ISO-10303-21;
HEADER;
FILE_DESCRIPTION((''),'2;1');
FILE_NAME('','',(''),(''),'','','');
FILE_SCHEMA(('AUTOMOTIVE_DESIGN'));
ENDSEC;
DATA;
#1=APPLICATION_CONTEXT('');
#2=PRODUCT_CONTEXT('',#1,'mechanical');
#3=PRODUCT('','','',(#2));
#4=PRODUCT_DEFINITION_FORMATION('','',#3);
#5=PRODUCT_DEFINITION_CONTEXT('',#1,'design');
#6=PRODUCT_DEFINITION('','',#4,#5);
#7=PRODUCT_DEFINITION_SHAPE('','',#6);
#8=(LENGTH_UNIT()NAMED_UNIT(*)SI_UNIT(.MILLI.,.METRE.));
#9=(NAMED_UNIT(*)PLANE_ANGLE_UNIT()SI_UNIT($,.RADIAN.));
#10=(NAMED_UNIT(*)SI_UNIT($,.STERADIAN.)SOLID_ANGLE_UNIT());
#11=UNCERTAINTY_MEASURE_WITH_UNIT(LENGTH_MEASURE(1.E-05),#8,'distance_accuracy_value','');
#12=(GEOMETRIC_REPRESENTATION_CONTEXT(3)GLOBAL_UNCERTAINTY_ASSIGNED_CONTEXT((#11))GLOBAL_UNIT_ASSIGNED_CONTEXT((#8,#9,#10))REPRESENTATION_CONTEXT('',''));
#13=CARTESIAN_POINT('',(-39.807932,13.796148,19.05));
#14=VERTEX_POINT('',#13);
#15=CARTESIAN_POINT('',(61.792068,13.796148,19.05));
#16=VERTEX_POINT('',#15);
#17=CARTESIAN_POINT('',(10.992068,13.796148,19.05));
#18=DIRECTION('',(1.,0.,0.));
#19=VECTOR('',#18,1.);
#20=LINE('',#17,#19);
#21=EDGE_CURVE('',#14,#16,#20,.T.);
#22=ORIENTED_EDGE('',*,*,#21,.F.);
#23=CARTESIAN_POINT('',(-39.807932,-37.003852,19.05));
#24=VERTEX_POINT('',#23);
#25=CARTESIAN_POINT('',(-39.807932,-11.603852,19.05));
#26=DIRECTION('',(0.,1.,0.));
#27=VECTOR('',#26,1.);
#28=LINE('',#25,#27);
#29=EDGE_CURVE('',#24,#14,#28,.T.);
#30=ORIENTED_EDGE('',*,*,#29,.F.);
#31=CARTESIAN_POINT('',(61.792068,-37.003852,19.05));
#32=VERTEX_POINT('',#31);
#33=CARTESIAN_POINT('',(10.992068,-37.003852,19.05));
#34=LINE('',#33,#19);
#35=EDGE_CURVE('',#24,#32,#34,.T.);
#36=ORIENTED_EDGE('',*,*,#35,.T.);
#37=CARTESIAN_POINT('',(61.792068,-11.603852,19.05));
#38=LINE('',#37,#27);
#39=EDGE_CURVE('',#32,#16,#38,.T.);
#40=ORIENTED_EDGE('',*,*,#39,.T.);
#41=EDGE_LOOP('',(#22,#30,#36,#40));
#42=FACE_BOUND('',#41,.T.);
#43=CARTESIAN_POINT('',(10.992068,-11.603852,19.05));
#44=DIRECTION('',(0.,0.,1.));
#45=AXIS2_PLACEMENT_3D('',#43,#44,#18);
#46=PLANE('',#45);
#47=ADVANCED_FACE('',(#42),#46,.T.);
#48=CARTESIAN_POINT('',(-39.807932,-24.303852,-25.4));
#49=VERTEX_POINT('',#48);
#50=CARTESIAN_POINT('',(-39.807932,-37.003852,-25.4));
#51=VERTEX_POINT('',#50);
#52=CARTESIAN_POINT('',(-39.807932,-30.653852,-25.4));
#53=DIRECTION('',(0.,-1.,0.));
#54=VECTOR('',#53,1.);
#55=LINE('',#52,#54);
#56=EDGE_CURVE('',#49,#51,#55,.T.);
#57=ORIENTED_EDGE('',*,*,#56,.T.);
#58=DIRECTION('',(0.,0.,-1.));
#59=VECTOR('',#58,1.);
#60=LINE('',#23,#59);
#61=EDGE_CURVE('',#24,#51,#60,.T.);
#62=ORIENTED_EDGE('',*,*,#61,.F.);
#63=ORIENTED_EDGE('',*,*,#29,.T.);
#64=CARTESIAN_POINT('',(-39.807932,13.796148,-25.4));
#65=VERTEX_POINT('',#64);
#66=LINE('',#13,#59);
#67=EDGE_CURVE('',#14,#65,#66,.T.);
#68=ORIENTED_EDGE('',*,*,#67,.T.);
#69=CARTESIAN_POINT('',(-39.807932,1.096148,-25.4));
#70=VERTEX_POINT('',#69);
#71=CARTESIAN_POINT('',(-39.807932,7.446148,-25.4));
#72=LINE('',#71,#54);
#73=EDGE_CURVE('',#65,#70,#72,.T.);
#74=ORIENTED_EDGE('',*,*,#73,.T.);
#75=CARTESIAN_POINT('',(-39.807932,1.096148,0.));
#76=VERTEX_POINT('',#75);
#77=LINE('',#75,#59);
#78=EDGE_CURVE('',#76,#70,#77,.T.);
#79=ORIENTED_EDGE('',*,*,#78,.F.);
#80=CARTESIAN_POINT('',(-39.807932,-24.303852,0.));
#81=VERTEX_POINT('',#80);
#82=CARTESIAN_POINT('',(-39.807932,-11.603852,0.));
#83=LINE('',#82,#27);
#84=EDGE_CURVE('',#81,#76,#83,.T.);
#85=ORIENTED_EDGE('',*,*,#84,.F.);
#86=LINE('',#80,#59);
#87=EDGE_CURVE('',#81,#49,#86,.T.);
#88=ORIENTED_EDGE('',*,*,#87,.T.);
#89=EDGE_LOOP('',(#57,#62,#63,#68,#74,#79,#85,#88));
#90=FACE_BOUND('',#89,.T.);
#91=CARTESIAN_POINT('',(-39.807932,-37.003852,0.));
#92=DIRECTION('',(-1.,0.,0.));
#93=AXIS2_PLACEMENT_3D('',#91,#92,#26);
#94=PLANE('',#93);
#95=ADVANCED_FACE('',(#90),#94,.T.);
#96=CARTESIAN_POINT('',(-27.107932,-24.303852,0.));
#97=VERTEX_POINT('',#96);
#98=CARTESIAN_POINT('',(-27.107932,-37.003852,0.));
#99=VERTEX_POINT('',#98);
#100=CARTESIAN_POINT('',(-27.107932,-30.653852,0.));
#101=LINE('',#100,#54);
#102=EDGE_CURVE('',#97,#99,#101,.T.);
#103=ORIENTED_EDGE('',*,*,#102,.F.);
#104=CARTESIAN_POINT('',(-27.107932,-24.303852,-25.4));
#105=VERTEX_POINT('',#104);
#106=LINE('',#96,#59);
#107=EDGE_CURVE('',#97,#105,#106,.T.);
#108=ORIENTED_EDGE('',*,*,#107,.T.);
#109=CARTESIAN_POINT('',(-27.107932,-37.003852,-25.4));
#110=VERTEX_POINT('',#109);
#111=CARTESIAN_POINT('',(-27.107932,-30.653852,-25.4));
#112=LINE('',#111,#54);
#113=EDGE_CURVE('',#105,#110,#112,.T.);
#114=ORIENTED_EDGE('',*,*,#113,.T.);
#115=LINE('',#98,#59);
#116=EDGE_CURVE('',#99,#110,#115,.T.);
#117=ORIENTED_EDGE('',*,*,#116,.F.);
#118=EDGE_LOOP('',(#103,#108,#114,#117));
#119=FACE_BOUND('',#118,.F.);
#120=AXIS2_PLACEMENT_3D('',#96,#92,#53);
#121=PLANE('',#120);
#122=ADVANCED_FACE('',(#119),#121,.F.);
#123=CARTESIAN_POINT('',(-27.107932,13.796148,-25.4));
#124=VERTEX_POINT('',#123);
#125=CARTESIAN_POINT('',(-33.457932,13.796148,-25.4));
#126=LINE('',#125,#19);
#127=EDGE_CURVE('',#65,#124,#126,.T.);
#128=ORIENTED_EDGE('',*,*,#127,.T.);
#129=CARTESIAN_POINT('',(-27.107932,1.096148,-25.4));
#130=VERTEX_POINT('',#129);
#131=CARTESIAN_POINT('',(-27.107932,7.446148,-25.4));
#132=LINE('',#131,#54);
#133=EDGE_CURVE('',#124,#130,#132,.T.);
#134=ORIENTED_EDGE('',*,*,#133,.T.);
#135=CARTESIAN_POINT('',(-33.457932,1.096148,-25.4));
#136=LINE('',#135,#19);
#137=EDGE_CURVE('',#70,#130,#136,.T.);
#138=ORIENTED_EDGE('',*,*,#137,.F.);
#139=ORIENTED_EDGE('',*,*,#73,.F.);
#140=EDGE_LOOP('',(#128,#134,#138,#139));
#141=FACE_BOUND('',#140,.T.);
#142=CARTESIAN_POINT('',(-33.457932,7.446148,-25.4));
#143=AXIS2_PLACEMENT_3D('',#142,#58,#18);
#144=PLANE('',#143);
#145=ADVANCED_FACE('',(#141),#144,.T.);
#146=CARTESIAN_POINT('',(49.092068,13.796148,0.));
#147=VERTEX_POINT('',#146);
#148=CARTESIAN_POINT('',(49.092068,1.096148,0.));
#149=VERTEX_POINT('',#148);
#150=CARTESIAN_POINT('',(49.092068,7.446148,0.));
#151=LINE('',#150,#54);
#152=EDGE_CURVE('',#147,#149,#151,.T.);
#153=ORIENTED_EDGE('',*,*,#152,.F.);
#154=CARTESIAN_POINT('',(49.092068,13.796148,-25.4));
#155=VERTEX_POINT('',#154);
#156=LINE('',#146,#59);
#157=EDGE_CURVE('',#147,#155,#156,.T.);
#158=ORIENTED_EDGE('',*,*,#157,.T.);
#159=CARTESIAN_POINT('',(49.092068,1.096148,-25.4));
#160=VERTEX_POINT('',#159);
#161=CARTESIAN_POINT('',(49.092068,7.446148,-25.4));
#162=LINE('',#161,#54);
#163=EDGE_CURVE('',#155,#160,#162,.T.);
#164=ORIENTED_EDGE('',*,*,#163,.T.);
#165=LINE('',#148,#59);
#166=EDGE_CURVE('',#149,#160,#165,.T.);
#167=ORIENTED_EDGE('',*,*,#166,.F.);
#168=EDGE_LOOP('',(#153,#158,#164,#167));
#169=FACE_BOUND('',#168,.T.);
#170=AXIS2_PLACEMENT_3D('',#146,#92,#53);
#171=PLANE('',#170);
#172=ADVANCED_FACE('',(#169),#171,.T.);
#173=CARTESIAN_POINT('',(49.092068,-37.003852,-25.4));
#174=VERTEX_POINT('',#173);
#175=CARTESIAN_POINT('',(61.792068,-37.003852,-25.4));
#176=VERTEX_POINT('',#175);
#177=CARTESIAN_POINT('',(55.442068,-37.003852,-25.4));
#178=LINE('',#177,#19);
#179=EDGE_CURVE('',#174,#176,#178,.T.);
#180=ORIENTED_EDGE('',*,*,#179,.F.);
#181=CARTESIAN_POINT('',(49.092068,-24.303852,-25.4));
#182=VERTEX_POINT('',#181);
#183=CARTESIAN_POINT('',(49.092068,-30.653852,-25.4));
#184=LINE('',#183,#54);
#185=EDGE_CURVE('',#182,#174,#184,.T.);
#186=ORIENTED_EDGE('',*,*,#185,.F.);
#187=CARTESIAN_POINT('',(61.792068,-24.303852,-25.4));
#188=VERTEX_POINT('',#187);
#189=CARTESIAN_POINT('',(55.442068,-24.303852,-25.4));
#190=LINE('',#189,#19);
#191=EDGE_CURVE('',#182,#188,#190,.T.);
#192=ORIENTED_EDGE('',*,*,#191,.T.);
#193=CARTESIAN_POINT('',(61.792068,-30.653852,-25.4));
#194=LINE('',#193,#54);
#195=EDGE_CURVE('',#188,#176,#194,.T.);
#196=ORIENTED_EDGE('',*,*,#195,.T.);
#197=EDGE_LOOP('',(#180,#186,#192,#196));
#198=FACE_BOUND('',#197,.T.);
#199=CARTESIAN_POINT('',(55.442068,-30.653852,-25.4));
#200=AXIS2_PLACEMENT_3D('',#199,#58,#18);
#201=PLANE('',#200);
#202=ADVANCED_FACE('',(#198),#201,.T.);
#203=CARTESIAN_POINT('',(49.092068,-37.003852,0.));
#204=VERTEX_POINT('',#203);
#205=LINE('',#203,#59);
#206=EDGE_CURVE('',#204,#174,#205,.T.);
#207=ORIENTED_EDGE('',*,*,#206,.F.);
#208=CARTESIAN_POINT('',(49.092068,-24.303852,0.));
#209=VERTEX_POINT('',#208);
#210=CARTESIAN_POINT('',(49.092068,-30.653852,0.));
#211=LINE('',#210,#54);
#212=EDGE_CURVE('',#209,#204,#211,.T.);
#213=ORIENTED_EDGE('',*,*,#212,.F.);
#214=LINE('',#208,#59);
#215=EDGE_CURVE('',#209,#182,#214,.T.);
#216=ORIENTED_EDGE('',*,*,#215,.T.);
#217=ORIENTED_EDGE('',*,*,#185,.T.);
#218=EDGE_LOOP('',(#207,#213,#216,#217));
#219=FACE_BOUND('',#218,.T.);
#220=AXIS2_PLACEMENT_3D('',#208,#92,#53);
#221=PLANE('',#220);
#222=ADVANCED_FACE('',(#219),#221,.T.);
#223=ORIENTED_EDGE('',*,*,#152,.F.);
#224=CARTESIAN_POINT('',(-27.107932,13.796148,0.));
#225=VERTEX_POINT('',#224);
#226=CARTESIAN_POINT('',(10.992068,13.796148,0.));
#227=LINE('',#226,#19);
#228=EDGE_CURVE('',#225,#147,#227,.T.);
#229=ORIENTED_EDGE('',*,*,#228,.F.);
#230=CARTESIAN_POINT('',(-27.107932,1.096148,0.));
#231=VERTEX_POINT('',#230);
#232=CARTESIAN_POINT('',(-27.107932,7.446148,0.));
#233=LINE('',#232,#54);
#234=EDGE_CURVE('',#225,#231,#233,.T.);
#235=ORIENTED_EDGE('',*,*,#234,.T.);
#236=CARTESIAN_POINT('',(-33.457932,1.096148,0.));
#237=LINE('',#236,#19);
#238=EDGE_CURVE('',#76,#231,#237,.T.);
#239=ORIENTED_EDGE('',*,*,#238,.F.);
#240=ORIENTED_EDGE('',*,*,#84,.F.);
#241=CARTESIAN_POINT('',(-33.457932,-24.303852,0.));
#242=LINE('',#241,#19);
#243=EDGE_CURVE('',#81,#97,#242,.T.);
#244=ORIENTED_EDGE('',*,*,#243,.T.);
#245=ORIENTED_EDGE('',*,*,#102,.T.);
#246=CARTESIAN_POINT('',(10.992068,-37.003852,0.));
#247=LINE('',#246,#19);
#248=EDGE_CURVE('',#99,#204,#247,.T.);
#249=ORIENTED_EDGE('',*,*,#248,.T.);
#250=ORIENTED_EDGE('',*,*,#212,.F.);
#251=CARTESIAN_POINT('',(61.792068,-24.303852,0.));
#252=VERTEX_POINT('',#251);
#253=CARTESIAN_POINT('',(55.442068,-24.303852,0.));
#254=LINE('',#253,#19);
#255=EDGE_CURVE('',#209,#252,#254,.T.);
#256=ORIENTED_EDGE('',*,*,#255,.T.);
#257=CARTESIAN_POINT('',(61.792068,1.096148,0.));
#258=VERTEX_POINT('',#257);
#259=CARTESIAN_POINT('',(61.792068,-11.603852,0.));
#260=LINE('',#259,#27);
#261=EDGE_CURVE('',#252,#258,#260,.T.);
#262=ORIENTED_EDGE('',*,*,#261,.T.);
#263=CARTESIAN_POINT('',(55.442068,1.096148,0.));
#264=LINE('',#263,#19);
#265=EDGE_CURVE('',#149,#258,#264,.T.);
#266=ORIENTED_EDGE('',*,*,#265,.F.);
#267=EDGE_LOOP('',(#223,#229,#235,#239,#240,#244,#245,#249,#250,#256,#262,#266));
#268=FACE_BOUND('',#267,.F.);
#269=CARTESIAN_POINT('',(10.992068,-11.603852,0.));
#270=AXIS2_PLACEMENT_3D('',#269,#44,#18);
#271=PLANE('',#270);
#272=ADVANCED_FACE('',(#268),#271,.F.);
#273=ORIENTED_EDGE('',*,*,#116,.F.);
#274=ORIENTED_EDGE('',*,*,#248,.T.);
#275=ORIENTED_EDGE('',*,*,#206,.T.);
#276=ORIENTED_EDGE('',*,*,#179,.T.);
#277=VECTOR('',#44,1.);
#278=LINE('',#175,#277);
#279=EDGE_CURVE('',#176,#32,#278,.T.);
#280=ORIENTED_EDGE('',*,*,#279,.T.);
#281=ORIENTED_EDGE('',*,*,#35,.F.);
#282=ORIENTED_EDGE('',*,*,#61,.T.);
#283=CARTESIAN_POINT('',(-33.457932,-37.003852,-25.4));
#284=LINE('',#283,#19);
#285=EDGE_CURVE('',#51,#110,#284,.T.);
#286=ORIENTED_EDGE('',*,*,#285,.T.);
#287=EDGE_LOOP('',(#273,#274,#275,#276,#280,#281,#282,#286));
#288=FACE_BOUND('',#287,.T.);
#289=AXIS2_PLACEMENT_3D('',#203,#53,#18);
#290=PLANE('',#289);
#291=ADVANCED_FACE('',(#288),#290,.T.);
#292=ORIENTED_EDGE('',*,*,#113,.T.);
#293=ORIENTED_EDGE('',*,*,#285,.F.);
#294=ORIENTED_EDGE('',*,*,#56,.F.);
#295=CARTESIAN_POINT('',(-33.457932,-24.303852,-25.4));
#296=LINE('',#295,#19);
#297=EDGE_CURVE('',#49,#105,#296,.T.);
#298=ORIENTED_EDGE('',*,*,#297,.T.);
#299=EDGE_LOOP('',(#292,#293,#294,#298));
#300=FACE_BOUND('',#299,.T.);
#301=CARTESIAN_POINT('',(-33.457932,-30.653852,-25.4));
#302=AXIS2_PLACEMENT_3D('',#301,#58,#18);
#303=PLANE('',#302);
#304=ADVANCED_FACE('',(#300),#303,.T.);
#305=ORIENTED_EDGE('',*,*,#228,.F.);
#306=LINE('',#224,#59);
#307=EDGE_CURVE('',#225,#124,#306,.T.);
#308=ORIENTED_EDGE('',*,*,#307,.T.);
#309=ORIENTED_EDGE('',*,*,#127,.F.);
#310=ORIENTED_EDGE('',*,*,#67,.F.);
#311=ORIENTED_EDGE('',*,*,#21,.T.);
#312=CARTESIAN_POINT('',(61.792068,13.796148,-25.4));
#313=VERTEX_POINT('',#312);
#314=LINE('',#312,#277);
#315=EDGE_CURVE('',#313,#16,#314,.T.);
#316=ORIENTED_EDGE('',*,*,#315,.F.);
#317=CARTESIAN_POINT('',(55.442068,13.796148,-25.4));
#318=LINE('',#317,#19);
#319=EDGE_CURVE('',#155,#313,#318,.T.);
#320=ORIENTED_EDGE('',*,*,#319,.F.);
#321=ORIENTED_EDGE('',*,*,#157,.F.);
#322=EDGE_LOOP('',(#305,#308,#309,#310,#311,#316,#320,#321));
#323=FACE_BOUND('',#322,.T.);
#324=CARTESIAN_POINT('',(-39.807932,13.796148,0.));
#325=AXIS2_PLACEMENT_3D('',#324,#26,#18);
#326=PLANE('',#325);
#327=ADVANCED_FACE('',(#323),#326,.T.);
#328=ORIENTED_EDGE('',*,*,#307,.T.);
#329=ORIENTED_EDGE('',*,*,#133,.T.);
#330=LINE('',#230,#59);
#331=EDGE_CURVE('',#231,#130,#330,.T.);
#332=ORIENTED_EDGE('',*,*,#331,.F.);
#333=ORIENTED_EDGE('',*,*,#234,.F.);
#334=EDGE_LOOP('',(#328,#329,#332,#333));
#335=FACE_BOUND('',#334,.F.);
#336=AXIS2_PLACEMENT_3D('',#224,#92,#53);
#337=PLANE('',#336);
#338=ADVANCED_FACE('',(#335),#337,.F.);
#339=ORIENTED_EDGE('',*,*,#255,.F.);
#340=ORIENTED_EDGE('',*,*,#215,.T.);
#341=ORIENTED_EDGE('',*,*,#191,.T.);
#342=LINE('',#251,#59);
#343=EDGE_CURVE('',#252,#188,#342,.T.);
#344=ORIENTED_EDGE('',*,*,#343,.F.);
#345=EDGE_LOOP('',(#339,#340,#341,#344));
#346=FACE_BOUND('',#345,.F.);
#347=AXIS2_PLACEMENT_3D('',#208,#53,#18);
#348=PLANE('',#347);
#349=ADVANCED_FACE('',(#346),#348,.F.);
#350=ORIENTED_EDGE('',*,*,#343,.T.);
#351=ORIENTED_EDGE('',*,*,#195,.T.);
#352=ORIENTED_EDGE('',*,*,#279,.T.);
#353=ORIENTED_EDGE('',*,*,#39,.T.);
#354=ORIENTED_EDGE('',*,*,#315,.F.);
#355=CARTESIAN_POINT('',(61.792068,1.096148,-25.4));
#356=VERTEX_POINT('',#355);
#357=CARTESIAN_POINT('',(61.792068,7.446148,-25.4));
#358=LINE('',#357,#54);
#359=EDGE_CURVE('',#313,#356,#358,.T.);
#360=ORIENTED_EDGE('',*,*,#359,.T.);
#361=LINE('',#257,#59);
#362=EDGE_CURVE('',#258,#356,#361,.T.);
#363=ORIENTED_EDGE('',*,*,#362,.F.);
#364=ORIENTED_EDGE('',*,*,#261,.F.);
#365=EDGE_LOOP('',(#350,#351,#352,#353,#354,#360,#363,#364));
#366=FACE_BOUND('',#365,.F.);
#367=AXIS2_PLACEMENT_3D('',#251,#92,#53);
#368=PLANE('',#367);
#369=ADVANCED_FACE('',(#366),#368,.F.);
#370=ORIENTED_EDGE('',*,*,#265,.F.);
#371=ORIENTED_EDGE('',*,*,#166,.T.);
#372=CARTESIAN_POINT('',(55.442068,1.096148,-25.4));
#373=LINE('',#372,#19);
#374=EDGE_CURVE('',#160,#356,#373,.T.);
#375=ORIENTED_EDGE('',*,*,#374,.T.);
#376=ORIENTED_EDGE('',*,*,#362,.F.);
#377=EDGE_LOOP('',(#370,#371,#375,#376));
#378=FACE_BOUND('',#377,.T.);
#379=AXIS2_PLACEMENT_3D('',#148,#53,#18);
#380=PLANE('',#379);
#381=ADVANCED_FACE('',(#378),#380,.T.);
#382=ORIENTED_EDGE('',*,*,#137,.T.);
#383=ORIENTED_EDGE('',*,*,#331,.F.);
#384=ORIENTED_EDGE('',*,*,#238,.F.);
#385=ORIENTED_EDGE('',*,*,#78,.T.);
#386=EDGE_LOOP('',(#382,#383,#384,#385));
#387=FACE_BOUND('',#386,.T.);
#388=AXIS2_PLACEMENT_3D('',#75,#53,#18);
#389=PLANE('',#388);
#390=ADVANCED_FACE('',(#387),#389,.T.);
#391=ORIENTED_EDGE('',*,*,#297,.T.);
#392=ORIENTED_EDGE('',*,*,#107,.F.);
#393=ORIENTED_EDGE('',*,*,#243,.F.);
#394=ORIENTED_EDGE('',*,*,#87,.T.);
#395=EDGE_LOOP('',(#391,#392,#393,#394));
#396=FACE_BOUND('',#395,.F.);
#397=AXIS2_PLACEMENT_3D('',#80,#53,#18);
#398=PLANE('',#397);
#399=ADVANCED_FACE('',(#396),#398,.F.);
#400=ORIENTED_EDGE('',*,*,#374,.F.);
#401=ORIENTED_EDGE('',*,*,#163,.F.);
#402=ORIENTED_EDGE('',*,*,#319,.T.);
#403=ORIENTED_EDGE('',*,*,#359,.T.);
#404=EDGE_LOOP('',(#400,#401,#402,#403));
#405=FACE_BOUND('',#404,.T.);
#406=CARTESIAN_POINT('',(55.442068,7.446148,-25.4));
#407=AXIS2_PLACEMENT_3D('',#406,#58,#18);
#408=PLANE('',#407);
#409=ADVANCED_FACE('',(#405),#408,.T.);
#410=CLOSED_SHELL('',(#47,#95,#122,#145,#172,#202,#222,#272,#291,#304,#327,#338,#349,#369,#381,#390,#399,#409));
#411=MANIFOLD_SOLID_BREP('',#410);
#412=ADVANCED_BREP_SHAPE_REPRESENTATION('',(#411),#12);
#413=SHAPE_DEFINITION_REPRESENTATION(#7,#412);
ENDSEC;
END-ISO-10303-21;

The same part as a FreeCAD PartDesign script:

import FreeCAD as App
import Part
import Sketcher
from FreeCAD import Vector
Q = App.Units.Quantity

doc = App.newDocument("Part")
body = doc.addObject("PartDesign::Body", "Body")

# Sketch on XY plane
sketch1 = body.newObject("Sketcher::SketchObject", "Sketch")
sketch1.AttachmentSupport = (doc.getObject("XY_Plane"), [""])
sketch1.MapMode = "FlatFace"
sketch1.addGeometry([
    Part.LineSegment(Vector(-40, 14, 0), Vector(-40, -37, 0)),
    Part.LineSegment(Vector(-40, -37, 0), Vector(62, -37, 0)),
    Part.LineSegment(Vector(62, -37, 0), Vector(62, 14, 0)),
    Part.LineSegment(Vector(62, 14, 0), Vector(-40, 14, 0)),
], False)
sketch1.addConstraint([
    Sketcher.Constraint("Coincident", 0, 2, 1, 1),
    Sketcher.Constraint("Coincident", 1, 2, 2, 1),
    Sketcher.Constraint("Coincident", 2, 2, 3, 1),
    Sketcher.Constraint("Coincident", 3, 2, 0, 1),
    Sketcher.Constraint("Vertical", 0),
    Sketcher.Constraint("Horizontal", 1),
    Sketcher.Constraint("Vertical", 2),
    Sketcher.Constraint("Horizontal", 3),
    Sketcher.Constraint("DistanceX", 1, 1, 1, 2, Q("4 in")),
    Sketcher.Constraint("DistanceY", 0, 2, 0, 1, Q("2 in")),
    Sketcher.Constraint("DistanceX", 0, 2, -1, 1, Q("39.807932 mm")),
    Sketcher.Constraint("DistanceY", 0, 2, -1, 1, Q("37.003852 mm")),
])
pad1 = body.newObject("PartDesign::Pad", "Pad")
pad1.Profile = sketch1
pad1.Length = Q("0.75 in")

# Sketch on XY plane
sketch2 = body.newObject("Sketcher::SketchObject", "Sketch001")
sketch2.AttachmentSupport = (doc.getObject("XY_Plane"), [""])
sketch2.MapMode = "FlatFace"
sketch2.addGeometry([
    Part.LineSegment(Vector(49, -37, 0), Vector(49, -24, 0)),  # 0
    Part.LineSegment(Vector(49, -24, 0), Vector(62, -24, 0)),  # 1
    Part.LineSegment(Vector(62, -24, 0), Vector(62, -37, 0)),  # 2
    Part.LineSegment(Vector(62, -37, 0), Vector(49, -37, 0)),  # 3
    Part.LineSegment(Vector(49, 1, 0), Vector(49, 14, 0)),  # 4
    Part.LineSegment(Vector(49, 14, 0), Vector(62, 14, 0)),  # 5
    Part.LineSegment(Vector(62, 14, 0), Vector(62, 1, 0)),  # 6
    Part.LineSegment(Vector(62, 1, 0), Vector(49, 1, 0)),  # 7
    Part.LineSegment(Vector(-40, 1, 0), Vector(-40, 14, 0)),  # 8
    Part.LineSegment(Vector(-40, 14, 0), Vector(-27, 14, 0)),  # 9
    Part.LineSegment(Vector(-27, 14, 0), Vector(-27, 1, 0)),  # 10
    Part.LineSegment(Vector(-27, 1, 0), Vector(-40, 1, 0)),  # 11
    Part.LineSegment(Vector(-40, -37, 0), Vector(-40, -24, 0)),  # 12
    Part.LineSegment(Vector(-40, -24, 0), Vector(-27, -24, 0)),  # 13
    Part.LineSegment(Vector(-27, -24, 0), Vector(-27, -37, 0)),  # 14
    Part.LineSegment(Vector(-27, -37, 0), Vector(-40, -37, 0)),  # 15
], False)
sketch2.addConstraint([
    Sketcher.Constraint("Coincident", 0, 2, 1, 1),
    Sketcher.Constraint("Coincident", 1, 2, 2, 1),
    Sketcher.Constraint("Coincident", 2, 2, 3, 1),
    Sketcher.Constraint("Coincident", 3, 2, 0, 1),
    Sketcher.Constraint("Coincident", 4, 2, 5, 1),
    Sketcher.Constraint("Coincident", 5, 2, 6, 1),
    Sketcher.Constraint("Coincident", 6, 2, 7, 1),
    Sketcher.Constraint("Coincident", 7, 2, 4, 1),
    Sketcher.Constraint("Coincident", 8, 2, 9, 1),
    Sketcher.Constraint("Coincident", 9, 2, 10, 1),
    Sketcher.Constraint("Coincident", 10, 2, 11, 1),
    Sketcher.Constraint("Coincident", 11, 2, 8, 1),
    Sketcher.Constraint("Coincident", 12, 2, 13, 1),
    Sketcher.Constraint("Coincident", 13, 2, 14, 1),
    Sketcher.Constraint("Coincident", 14, 2, 15, 1),
    Sketcher.Constraint("Coincident", 15, 2, 12, 1),
    Sketcher.Constraint("Vertical", 0),
    Sketcher.Constraint("Horizontal", 1),
    Sketcher.Constraint("Vertical", 2),
    Sketcher.Constraint("Horizontal", 3),
    Sketcher.Constraint("Vertical", 4),
    Sketcher.Constraint("Horizontal", 5),
    Sketcher.Constraint("Vertical", 6),
    Sketcher.Constraint("Horizontal", 7),
    Sketcher.Constraint("Vertical", 8),
    Sketcher.Constraint("Horizontal", 9),
    Sketcher.Constraint("Vertical", 10),
    Sketcher.Constraint("Horizontal", 11),
    Sketcher.Constraint("Vertical", 12),
    Sketcher.Constraint("Horizontal", 13),
    Sketcher.Constraint("Vertical", 14),
    Sketcher.Constraint("Horizontal", 15),
    Sketcher.Constraint("Horizontal", 5, 2, 8, 2),
    Sketcher.Constraint("Horizontal", 7, 2, 10, 2),
    Sketcher.Constraint("Horizontal", 1, 2, 12, 2),
    Sketcher.Constraint("Horizontal", 3, 2, 14, 2),
    Sketcher.Constraint("Vertical", 3, 2, 4, 2),
    Sketcher.Constraint("Vertical", 2, 2, 5, 2),
    Sketcher.Constraint("Vertical", 11, 2, 12, 2),
    Sketcher.Constraint("Vertical", 10, 2, 13, 2),
    Sketcher.Constraint("Equal", 7, 9),
    Sketcher.Constraint("Equal", 15, 0),
    Sketcher.Constraint("Equal", 2, 4),
    Sketcher.Constraint("DistanceX", 1, 1, 1, 2, Q("0.5 in")),
    Sketcher.Constraint("DistanceY", 3, 2, 4, 2, Q("2 in")),
    Sketcher.Constraint("DistanceX", 8, 2, 5, 2, Q("4 in")),
    Sketcher.Constraint("DistanceY", 0, 2, -1, 1, Q("24.303852 mm")),
    Sketcher.Constraint("DistanceX", -1, 1, 0, 2, Q("49.092068 mm")),
])
pad2 = body.newObject("PartDesign::Pad", "Pad001")
pad2.Profile = sketch2
pad2.Length = Q("1 in")
pad2.Reversed = True

doc.recompute()
